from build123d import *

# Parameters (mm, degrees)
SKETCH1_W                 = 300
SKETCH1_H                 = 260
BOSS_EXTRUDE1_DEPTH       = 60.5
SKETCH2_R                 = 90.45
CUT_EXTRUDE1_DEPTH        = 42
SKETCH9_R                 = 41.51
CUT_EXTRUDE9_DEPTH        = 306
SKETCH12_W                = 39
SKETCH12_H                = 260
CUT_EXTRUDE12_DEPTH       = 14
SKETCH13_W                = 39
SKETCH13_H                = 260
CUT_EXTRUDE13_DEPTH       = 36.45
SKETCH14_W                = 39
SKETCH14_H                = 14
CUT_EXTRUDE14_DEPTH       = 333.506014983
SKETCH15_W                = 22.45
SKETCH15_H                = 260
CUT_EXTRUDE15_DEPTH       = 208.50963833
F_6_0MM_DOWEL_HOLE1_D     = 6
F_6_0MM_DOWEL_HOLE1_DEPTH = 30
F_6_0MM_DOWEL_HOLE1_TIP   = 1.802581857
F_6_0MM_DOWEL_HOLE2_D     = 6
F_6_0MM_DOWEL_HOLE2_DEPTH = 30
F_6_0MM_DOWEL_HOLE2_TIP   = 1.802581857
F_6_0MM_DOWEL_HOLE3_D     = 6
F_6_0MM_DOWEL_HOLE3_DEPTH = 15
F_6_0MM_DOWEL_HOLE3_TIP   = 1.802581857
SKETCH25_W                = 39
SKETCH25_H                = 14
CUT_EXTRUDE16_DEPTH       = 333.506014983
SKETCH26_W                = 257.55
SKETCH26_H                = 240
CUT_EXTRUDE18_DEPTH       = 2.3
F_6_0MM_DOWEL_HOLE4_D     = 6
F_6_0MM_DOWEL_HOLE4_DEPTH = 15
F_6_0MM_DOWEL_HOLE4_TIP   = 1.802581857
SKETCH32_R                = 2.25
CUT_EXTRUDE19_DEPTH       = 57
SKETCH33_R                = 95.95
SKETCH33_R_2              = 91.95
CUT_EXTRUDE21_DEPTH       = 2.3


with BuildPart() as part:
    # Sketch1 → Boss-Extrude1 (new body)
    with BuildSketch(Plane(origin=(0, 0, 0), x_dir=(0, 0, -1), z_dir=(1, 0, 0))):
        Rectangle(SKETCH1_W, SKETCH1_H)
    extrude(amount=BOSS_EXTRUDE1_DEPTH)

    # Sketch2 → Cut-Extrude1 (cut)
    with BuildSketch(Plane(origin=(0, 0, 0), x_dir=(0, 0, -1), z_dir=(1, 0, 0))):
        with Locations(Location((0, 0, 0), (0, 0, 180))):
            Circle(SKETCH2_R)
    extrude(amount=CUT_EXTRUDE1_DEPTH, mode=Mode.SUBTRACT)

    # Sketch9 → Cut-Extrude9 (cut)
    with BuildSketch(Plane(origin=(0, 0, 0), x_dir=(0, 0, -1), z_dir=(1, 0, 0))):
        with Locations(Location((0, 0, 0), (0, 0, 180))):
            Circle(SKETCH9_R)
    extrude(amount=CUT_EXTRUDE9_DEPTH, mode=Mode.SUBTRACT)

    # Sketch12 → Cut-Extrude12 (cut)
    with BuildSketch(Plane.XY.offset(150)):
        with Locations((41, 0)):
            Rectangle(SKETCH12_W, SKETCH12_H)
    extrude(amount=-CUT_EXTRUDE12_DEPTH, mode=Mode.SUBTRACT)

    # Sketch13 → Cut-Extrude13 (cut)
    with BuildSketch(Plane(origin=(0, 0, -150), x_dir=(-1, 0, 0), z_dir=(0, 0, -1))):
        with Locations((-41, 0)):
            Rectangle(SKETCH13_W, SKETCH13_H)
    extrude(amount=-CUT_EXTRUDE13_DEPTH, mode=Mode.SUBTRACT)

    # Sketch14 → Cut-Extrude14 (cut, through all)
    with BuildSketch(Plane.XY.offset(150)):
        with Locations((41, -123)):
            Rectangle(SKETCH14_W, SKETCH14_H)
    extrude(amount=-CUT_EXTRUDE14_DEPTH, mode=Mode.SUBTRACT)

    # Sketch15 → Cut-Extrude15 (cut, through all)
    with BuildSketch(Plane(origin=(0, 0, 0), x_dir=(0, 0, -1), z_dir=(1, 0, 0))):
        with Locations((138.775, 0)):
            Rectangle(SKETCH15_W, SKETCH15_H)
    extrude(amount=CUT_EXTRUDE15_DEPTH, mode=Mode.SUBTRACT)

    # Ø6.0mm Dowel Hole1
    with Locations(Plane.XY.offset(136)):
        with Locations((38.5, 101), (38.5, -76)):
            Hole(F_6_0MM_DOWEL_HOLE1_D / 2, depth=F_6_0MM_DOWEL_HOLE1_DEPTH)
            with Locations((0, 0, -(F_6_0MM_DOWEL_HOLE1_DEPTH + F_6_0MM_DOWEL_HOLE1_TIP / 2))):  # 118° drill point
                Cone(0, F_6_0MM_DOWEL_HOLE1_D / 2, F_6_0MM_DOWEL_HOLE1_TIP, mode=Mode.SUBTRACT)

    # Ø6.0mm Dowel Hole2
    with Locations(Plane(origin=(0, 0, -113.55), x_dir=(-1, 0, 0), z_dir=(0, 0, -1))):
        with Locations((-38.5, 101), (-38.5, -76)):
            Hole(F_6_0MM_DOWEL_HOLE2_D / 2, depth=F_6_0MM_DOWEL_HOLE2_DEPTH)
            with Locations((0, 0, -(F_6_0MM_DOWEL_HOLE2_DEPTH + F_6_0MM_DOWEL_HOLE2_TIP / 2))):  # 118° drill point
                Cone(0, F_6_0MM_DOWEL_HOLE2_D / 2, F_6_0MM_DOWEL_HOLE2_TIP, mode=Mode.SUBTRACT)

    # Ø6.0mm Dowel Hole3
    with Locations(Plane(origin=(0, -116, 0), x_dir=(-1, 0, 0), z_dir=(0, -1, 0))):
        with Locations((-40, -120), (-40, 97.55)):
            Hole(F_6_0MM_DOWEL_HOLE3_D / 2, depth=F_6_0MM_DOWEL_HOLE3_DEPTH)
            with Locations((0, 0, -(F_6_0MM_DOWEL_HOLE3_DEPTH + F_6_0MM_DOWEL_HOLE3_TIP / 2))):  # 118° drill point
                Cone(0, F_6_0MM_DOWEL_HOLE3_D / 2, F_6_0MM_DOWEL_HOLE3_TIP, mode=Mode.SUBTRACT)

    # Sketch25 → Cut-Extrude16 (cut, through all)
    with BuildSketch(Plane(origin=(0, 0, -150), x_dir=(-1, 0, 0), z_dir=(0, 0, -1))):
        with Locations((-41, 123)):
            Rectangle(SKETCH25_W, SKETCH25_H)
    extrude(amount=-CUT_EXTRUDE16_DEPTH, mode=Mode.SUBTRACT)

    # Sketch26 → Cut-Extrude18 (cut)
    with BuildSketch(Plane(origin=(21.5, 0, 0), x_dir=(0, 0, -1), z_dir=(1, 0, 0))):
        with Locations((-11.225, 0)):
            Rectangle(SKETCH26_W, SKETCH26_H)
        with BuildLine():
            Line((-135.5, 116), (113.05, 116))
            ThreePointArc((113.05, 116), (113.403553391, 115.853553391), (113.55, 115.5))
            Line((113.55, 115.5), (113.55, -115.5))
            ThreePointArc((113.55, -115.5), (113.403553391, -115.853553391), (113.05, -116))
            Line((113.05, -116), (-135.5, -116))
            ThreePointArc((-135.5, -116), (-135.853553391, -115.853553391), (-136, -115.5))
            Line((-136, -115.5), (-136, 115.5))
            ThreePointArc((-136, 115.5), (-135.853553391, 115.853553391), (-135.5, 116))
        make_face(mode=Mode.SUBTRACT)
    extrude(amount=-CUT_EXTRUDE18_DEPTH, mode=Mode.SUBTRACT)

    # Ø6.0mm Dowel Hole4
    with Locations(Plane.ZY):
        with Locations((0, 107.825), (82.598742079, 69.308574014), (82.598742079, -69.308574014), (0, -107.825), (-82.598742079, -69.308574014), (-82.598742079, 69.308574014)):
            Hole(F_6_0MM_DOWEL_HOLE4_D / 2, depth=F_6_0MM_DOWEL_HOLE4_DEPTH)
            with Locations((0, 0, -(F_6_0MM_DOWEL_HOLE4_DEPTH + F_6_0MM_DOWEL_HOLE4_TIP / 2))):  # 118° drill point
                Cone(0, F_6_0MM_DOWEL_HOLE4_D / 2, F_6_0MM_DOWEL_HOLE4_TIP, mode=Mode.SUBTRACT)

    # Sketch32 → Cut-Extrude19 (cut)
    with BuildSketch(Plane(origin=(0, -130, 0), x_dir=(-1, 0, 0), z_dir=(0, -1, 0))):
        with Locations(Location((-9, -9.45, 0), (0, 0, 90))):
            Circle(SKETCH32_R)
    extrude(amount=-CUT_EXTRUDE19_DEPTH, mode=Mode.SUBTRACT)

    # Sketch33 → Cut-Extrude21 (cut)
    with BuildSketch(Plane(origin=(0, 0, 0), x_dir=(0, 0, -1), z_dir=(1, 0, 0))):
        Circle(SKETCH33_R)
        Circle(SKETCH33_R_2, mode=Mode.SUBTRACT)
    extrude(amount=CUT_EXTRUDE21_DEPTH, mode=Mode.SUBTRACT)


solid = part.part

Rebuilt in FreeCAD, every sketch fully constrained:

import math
import FreeCAD as App
import Part
import Sketcher
Q = App.Units.Quantity


def add_polygon(sketch, points):
    """Adds a closed chain of lines whose ends are joined by coincident constraints."""
    first, n = sketch.GeometryCount, len(points)
    for a, b in zip(points, points[1:] + points[:1]):
        sketch.addGeometry(Part.LineSegment(App.Vector(*a, 0), App.Vector(*b, 0)), False)
    for i in range(n):
        sketch.addConstraint(Sketcher.Constraint("Coincident", first + i, 2, first + (i + 1) % n, 1))

doc = App.newDocument("Part")
body = doc.addObject("PartDesign::Body", "Body")

# Sketch on YZ plane
sketch1 = body.newObject("Sketcher::SketchObject", "Sketch")
sketch1.AttachmentSupport = (doc.getObject("YZ_Plane"), [""])
sketch1.MapMode = "FlatFace"
add_polygon(sketch1, [(130, 150), (-130, 150), (-130, -150), (130, -150)])  # lines 0-3
sketch1.addConstraint([
    Sketcher.Constraint("Horizontal", 0),
    Sketcher.Constraint("Vertical", 1),
    Sketcher.Constraint("Horizontal", 2),
    Sketcher.Constraint("Vertical", 3),
    Sketcher.Constraint("Symmetric", 0, 2, 2, 2, -1, 1),
    Sketcher.Constraint("DistanceX", 0, 2, 0, 1, Q("260 mm")),
    Sketcher.Constraint("DistanceY", 1, 2, 1, 1, Q("300 mm")),
])
pad1 = body.newObject("PartDesign::Pad", "Pad")
pad1.Profile = sketch1
pad1.Length = 60.5

# Sketch on YZ plane
sketch2 = body.newObject("Sketcher::SketchObject", "Sketch001")
sketch2.AttachmentSupport = (doc.getObject("YZ_Plane"), [""])
sketch2.MapMode = "FlatFace"
sketch2.addGeometry(Part.Circle(App.Vector(0, 0, 0), App.Vector(0, 0, 1), 90), False)
sketch2.addConstraint([
    Sketcher.Constraint("Coincident", 0, 3, -1, 1),
    Sketcher.Constraint("Diameter", 0, Q("180.9 mm")),
])
pocket1 = body.newObject("PartDesign::Pocket", "Pocket")
pocket1.Profile = sketch2
pocket1.Length = 42
pocket1.Reversed = True

# Sketch on YZ plane
sketch3 = body.newObject("Sketcher::SketchObject", "Sketch002")
sketch3.AttachmentSupport = (doc.getObject("YZ_Plane"), [""])
sketch3.MapMode = "FlatFace"
sketch3.addGeometry(Part.Circle(App.Vector(0, 0, 0), App.Vector(0, 0, 1), 42), False)
sketch3.addConstraint([
    Sketcher.Constraint("Coincident", 0, 3, -1, 1),
    Sketcher.Constraint("Diameter", 0, Q("83.02 mm")),
])
pocket2 = body.newObject("PartDesign::Pocket", "Pocket001")
pocket2.Profile = sketch3
pocket2.Length = 306
pocket2.Reversed = True

# Sketch on XY plane
sketch4 = body.newObject("Sketcher::SketchObject", "Sketch003")
sketch4.AttachmentSupport = (doc.getObject("XY_Plane"), [""])
sketch4.MapMode = "FlatFace"
sketch4.AttachmentOffset = App.Placement(App.Vector(0, 0, 150), App.Rotation())
add_polygon(sketch4, [(22, 130), (22, -130), (60, -130), (60, 130)])  # lines 0-3
sketch4.addConstraint([
    Sketcher.Constraint("Vertical", 0),
    Sketcher.Constraint("Horizontal", 1),
    Sketcher.Constraint("Vertical", 2),
    Sketcher.Constraint("Horizontal", 3),
    Sketcher.Constraint("DistanceX", 1, 1, 1, 2, Q("39 mm")),
    Sketcher.Constraint("DistanceY", 0, 2, 0, 1, Q("260 mm")),
    Sketcher.Constraint("DistanceY", 0, 2, -1, 1, Q("130 mm")),
    Sketcher.Constraint("DistanceX", -1, 1, 0, 2, Q("21.5 mm")),
])
pocket3 = body.newObject("PartDesign::Pocket", "Pocket002")
pocket3.Profile = sketch4
pocket3.Length = 14

# Sketch on XY plane
sketch5 = body.newObject("Sketcher::SketchObject", "Sketch004")
sketch5.AttachmentSupport = (doc.getObject("XY_Plane"), [""])
sketch5.MapMode = "FlatFace"
sketch5.AttachmentOffset = App.Placement(App.Vector(0, 0, -150), App.Rotation())
add_polygon(sketch5, [(60, 130), (60, -130), (22, -130), (22, 130)])  # lines 0-3
sketch5.addConstraint([
    Sketcher.Constraint("Vertical", 0),
    Sketcher.Constraint("Horizontal", 1),
    Sketcher.Constraint("Vertical", 2),
    Sketcher.Constraint("Horizontal", 3),
    Sketcher.Constraint("DistanceX", 1, 2, 1, 1, Q("39 mm")),
    Sketcher.Constraint("DistanceY", 0, 2, 0, 1, Q("260 mm")),
    Sketcher.Constraint("DistanceY", 0, 2, -1, 1, Q("130 mm")),
    Sketcher.Constraint("DistanceX", -1, 1, 0, 2, Q("60.5 mm")),
])
pocket4 = body.newObject("PartDesign::Pocket", "Pocket003")
pocket4.Profile = sketch5
pocket4.Length = 36.45
pocket4.Reversed = True

# Sketch on XY plane
sketch6 = body.newObject("Sketcher::SketchObject", "Sketch005")
sketch6.AttachmentSupport = (doc.getObject("XY_Plane"), [""])
sketch6.MapMode = "FlatFace"
sketch6.AttachmentOffset = App.Placement(App.Vector(0, 0, 150), App.Rotation())
add_polygon(sketch6, [(22, -116), (22, -130), (60, -130), (60, -116)])  # lines 0-3
sketch6.addConstraint([
    Sketcher.Constraint("Vertical", 0),
    Sketcher.Constraint("Horizontal", 1),
    Sketcher.Constraint("Vertical", 2),
    Sketcher.Constraint("Horizontal", 3),
    Sketcher.Constraint("DistanceX", 1, 1, 1, 2, Q("39 mm")),
    Sketcher.Constraint("DistanceY", 0, 2, 0, 1, Q("14 mm")),
    Sketcher.Constraint("DistanceY", 0, 2, -1, 1, Q("130 mm")),
    Sketcher.Constraint("DistanceX", -1, 1, 0, 2, Q("21.5 mm")),
])
pocket5 = body.newObject("PartDesign::Pocket", "Pocket004")
pocket5.Profile = sketch6
pocket5.Type = "ThroughAll"

# Sketch on YZ plane
sketch7 = body.newObject("Sketcher::SketchObject", "Sketch006")
sketch7.AttachmentSupport = (doc.getObject("YZ_Plane"), [""])
sketch7.MapMode = "FlatFace"
add_polygon(sketch7, [(130, -128), (-130, -128), (-130, -150), (130, -150)])  # lines 0-3
sketch7.addConstraint([
    Sketcher.Constraint("Horizontal", 0),
    Sketcher.Constraint("Vertical", 1),
    Sketcher.Constraint("Horizontal", 2),
    Sketcher.Constraint("Vertical", 3),
    Sketcher.Constraint("DistanceX", 0, 2, 0, 1, Q("260 mm")),
    Sketcher.Constraint("DistanceX", 0, 2, -1, 1, Q("130 mm")),
    Sketcher.Constraint("DistanceY", 1, 2, -1, 1, Q("150 mm")),
    Sketcher.Constraint("DistanceY", 1, 2, 1, 1, Q("22.45 mm")),
])
pocket6 = body.newObject("PartDesign::Pocket", "Pocket005")
pocket6.Profile = sketch7
pocket6.Type = "ThroughAll"
pocket6.Reversed = True

# Sketch on XY plane
sketch8 = body.newObject("Sketcher::SketchObject", "Sketch007")
sketch8.AttachmentSupport = (doc.getObject("XY_Plane"), [""])
sketch8.MapMode = "FlatFace"
sketch8.AttachmentOffset = App.Placement(App.Vector(0, 0, 136), App.Rotation())
sketch8.addGeometry([
    Part.Circle(App.Vector(38.5, 101, 0), App.Vector(0, 0, 1), 3),
    Part.Circle(App.Vector(38.5, -76, 0), App.Vector(0, 0, 1), 3),
], False)
sketch8.addConstraint([
    Sketcher.Constraint("Equal", 0, 1),
    Sketcher.Constraint("Vertical", 0, 3, 1, 3),
    Sketcher.Constraint("Diameter", 0, Q("6 mm")),
    Sketcher.Constraint("DistanceY", -1, 1, 0, 3, Q("101 mm")),
    Sketcher.Constraint("DistanceY", 1, 3, -1, 1, Q("76 mm")),
    Sketcher.Constraint("DistanceX", -1, 1, 0, 3, Q("38.5 mm")),
])
doc.recompute()
hole = body.newObject("PartDesign::Hole", "Hole")
hole.Profile = sketch8
hole.ThreadType = "None"
hole.Diameter = 6
hole.DepthType = "Dimension"
hole.Depth = 30
hole.DrillPoint = "Angled"
hole.DrillPointAngle = 118

# Sketch on XY plane
sketch9 = body.newObject("Sketcher::SketchObject", "Sketch008")
sketch9.AttachmentSupport = (doc.getObject("XY_Plane"), [""])
sketch9.MapMode = "FlatFace"
sketch9.AttachmentOffset = App.Placement(App.Vector(0, 0, -113.55), App.Rotation())
sketch9.addGeometry([
    Part.Circle(App.Vector(38.5, 101, 0), App.Vector(0, 0, 1), 3),
    Part.Circle(App.Vector(38.5, -76, 0), App.Vector(0, 0, 1), 3),
], False)
sketch9.addConstraint([
    Sketcher.Constraint("Equal", 0, 1),
    Sketcher.Constraint("Vertical", 0, 3, 1, 3),
    Sketcher.Constraint("Diameter", 0, Q("6 mm")),
    Sketcher.Constraint("DistanceY", -1, 1, 0, 3, Q("101 mm")),
    Sketcher.Constraint("DistanceY", 1, 3, -1, 1, Q("76 mm")),
    Sketcher.Constraint("DistanceX", -1, 1, 0, 3, Q("38.5 mm")),
])
doc.recompute()
hole2 = body.newObject("PartDesign::Hole", "Hole001")
hole2.Profile = sketch9
hole2.ThreadType = "None"
hole2.Diameter = 6
hole2.DepthType = "Dimension"
hole2.Depth = 30
hole2.DrillPoint = "Angled"
hole2.DrillPointAngle = 118
hole2.Reversed = True

# Sketch on XZ plane
sketch10 = body.newObject("Sketcher::SketchObject", "Sketch009")
sketch10.AttachmentSupport = (doc.getObject("XZ_Plane"), [""])
sketch10.MapMode = "FlatFace"
sketch10.AttachmentOffset = App.Placement(App.Vector(0, 0, 116), App.Rotation())
sketch10.addGeometry([
    Part.Circle(App.Vector(40, 120, 0), App.Vector(0, 0, 1), 3),
    Part.Circle(App.Vector(40, -97.5, 0), App.Vector(0, 0, 1), 3),
], False)
sketch10.addConstraint([
    Sketcher.Constraint("Equal", 0, 1),
    Sketcher.Constraint("Vertical", 0, 3, 1, 3),
    Sketcher.Constraint("Diameter", 0, Q("6 mm")),
    Sketcher.Constraint("DistanceX", -1, 1, 0, 3, Q("40 mm")),
    Sketcher.Constraint("DistanceY", -1, 1, 0, 3, Q("120 mm")),
    Sketcher.Constraint("DistanceY", 1, 3, -1, 1, Q("97.55 mm")),
])
doc.recompute()
hole3 = body.newObject("PartDesign::Hole", "Hole002")
hole3.Profile = sketch10
hole3.ThreadType = "None"
hole3.Diameter = 6
hole3.DepthType = "Dimension"
hole3.Depth = 15
hole3.DrillPoint = "Angled"
hole3.DrillPointAngle = 118

# Sketch on XY plane
sketch11 = body.newObject("Sketcher::SketchObject", "Sketch010")
sketch11.AttachmentSupport = (doc.getObject("XY_Plane"), [""])
sketch11.MapMode = "FlatFace"
sketch11.AttachmentOffset = App.Placement(App.Vector(0, 0, -150), App.Rotation())
add_polygon(sketch11, [(60, 130), (60, 116), (22, 116), (22, 130)])  # lines 0-3
sketch11.addConstraint([
    Sketcher.Constraint("Vertical", 0),
    Sketcher.Constraint("Horizontal", 1),
    Sketcher.Constraint("Vertical", 2),
    Sketcher.Constraint("Horizontal", 3),
    Sketcher.Constraint("DistanceX", 1, 2, 1, 1, Q("39 mm")),
    Sketcher.Constraint("DistanceY", 0, 2, 0, 1, Q("14 mm")),
    Sketcher.Constraint("DistanceY", -1, 1, 0, 2, Q("116 mm")),
    Sketcher.Constraint("DistanceX", -1, 1, 0, 2, Q("60.5 mm")),
])
pocket7 = body.newObject("PartDesign::Pocket", "Pocket006")
pocket7.Profile = sketch11
pocket7.Type = "ThroughAll"
pocket7.Reversed = True

# Sketch on YZ plane
sketch12 = body.newObject("Sketcher::SketchObject", "Sketch011")
sketch12.AttachmentSupport = (doc.getObject("YZ_Plane"), [""])
sketch12.MapMode = "FlatFace"
sketch12.AttachmentOffset = App.Placement(App.Vector(0, 0, 21.5), App.Rotation())
add_polygon(sketch12, [(120, 140), (-120, 140), (-120, -117.55), (120, -117.55)])  # lines 0-3
sketch12.addGeometry(Part.ArcOfCircle(Part.Circle(App.Vector(115.5, 135.5, 0), App.Vector(0, 0, 1), 0.5), math.radians(0), math.radians(90)), False)  # 4
sketch12.addGeometry(Part.LineSegment(App.Vector(116, 135.5, 0), App.Vector(116, -113.05, 0)), False)  # 5
sketch12.addGeometry(Part.ArcOfCircle(Part.Circle(App.Vector(115.5, -113.05, 0), App.Vector(0, 0, 1), 0.5), math.radians(-90), math.radians(0)), False)  # 6
sketch12.addGeometry(Part.LineSegment(App.Vector(115.5, -113.55, 0), App.Vector(-115.5, -113.55, 0)), False)  # 7
sketch12.addGeometry(Part.ArcOfCircle(Part.Circle(App.Vector(-115.5, -113.05, 0), App.Vector(0, 0, 1), 0.5), math.radians(180), math.radians(270)), False)  # 8
sketch12.addGeometry(Part.LineSegment(App.Vector(-116, -113.05, 0), App.Vector(-116, 135.5, 0)), False)  # 9
sketch12.addGeometry(Part.ArcOfCircle(Part.Circle(App.Vector(-115.5, 135.5, 0), App.Vector(0, 0, 1), 0.5), math.radians(90), math.radians(180)), False)  # 10
sketch12.addGeometry(Part.LineSegment(App.Vector(-115.5, 136, 0), App.Vector(115.5, 136, 0)), False)  # 11
sketch12.addConstraint([
    Sketcher.Constraint("Tangent", 4, 1, 5, 1),
    Sketcher.Constraint("Tangent", 5, 2, 6, 2),
    Sketcher.Constraint("Tangent", 6, 1, 7, 1),
    Sketcher.Constraint("Tangent", 7, 2, 8, 2),
    Sketcher.Constraint("Tangent", 8, 1, 9, 1),
    Sketcher.Constraint("Tangent", 9, 2, 10, 2),
    Sketcher.Constraint("Tangent", 10, 1, 11, 1),
    Sketcher.Constraint("Tangent", 11, 2, 4, 2),
    Sketcher.Constraint("Horizontal", 0),
    Sketcher.Constraint("Vertical", 1),
    Sketcher.Constraint("Horizontal", 2),
    Sketcher.Constraint("Vertical", 3),
    Sketcher.Constraint("Vertical", 5),
    Sketcher.Constraint("Horizontal", 7),
    Sketcher.Constraint("Vertical", 9),
    Sketcher.Constraint("Horizontal", 11),
    Sketcher.Constraint("Equal", 4, 6),
    Sketcher.Constraint("Equal", 6, 8),
    Sketcher.Constraint("Equal", 8, 10),
    Sketcher.Constraint("Radius", 4, Q("0.5 mm")),
    Sketcher.Constraint("DistanceX", 0, 2, 0, 1, Q("240 mm")),
    Sketcher.Constraint("DistanceX", 7, 2, 7, 1, Q("231 mm")),
    Sketcher.Constraint("DistanceX", 0, 2, -1, 1, Q("120 mm")),
    Sketcher.Constraint("DistanceY", -1, 1, 0, 2, Q("140 mm")),
    Sketcher.Constraint("DistanceX", -1, 1, 4, 1, Q("116 mm")),
    Sketcher.Constraint("DistanceY", -1, 1, 10, 1, Q("136 mm")),
    Sketcher.Constraint("DistanceY", 2, 2, 6, 1, Q("4 mm")),
    Sketcher.Constraint("DistanceY", 1, 2, 1, 1, Q("257.55 mm")),
])
pocket8 = body.newObject("PartDesign::Pocket", "Pocket007")
pocket8.Profile = sketch12
pocket8.Length = 2.3

# Sketch on YZ plane
sketch13 = body.newObject("Sketcher::SketchObject", "Sketch012")
sketch13.AttachmentSupport = (doc.getObject("YZ_Plane"), [""])
sketch13.MapMode = "FlatFace"
sketch13.addGeometry([
    Part.Circle(App.Vector(107.8, 0, 0), App.Vector(0, 0, 1), 3),  # 0
    Part.Circle(App.Vector(69.3, 82.6, 0), App.Vector(0, 0, 1), 3),  # 1
    Part.Circle(App.Vector(-69.3, 82.6, 0), App.Vector(0, 0, 1), 3),  # 2
    Part.Circle(App.Vector(-107.8, 0, 0), App.Vector(0, 0, 1), 3),  # 3
    Part.Circle(App.Vector(-69.3, -82.6, 0), App.Vector(0, 0, 1), 3),  # 4
    Part.Circle(App.Vector(69.3, -82.6, 0), App.Vector(0, 0, 1), 3),  # 5
], False)
sketch13.addConstraint([
    Sketcher.Constraint("Equal", 0, 1),
    Sketcher.Constraint("Equal", 1, 2),
    Sketcher.Constraint("Equal", 2, 3),
    Sketcher.Constraint("Equal", 3, 4),
    Sketcher.Constraint("Equal", 4, 5),
    Sketcher.Constraint("Symmetric", 0, 3, 3, 3, -1, 1),
    Sketcher.Constraint("Symmetric", 1, 3, 4, 3, -1, 1),
    Sketcher.Constraint("Symmetric", 2, 3, 5, 3, -1, 1),
    Sketcher.Constraint("Symmetric", 1, 3, 2, 3, -2),
    Sketcher.Constraint("PointOnObject", 0, 3, -1),
    Sketcher.Constraint("Diameter", 0, Q("6 mm")),
    Sketcher.Constraint("DistanceX", 3, 3, 0, 3, Q("215.65 mm")),
    Sketcher.Constraint("DistanceX", 2, 3, 1, 3, Q("138.617148 mm")),
    Sketcher.Constraint("DistanceY", -1, 1, 1, 3, Q("82.598742 mm")),
])
doc.recompute()
hole4 = body.newObject("PartDesign::Hole", "Hole003")
hole4.Profile = sketch13
hole4.ThreadType = "None"
hole4.Diameter = 6
hole4.DepthType = "Dimension"
hole4.Depth = 15
hole4.DrillPoint = "Angled"
hole4.DrillPointAngle = 118
hole4.Reversed = True

# Sketch on XZ plane
sketch14 = body.newObject("Sketcher::SketchObject", "Sketch013")
sketch14.AttachmentSupport = (doc.getObject("XZ_Plane"), [""])
sketch14.MapMode = "FlatFace"
sketch14.AttachmentOffset = App.Placement(App.Vector(0, 0, 130), App.Rotation())
sketch14.addGeometry(Part.Circle(App.Vector(9, 9.4, 0), App.Vector(0, 0, 1), 2.2), False)
sketch14.addConstraint([
    Sketcher.Constraint("Diameter", 0, Q("4.5 mm")),
    Sketcher.Constraint("DistanceX", -1, 1, 0, 3, Q("9 mm")),
    Sketcher.Constraint("DistanceY", -1, 1, 0, 3, Q("9.45 mm")),
])
pocket9 = body.newObject("PartDesign::Pocket", "Pocket008")
pocket9.Profile = sketch14
pocket9.Length = 57

# Sketch on YZ plane
sketch15 = body.newObject("Sketcher::SketchObject", "Sketch014")
sketch15.AttachmentSupport = (doc.getObject("YZ_Plane"), [""])
sketch15.MapMode = "FlatFace"
sketch15.addGeometry([
    Part.Circle(App.Vector(0, 0, 0), App.Vector(0, 0, 1), 96),
    Part.Circle(App.Vector(0, 0, 0), App.Vector(0, 0, 1), 92),
], False)
sketch15.addConstraint([
    Sketcher.Constraint("Coincident", 0, 3, -1, 1),
    Sketcher.Constraint("Coincident", 1, 3, -1, 1),
    Sketcher.Constraint("Diameter", 0, Q("191.9 mm")),
    Sketcher.Constraint("Diameter", 1, Q("183.9 mm")),
])
pocket10 = body.newObject("PartDesign::Pocket", "Pocket009")
pocket10.Profile = sketch15
pocket10.Length = 2.3
pocket10.Reversed = True

doc.recompute()
